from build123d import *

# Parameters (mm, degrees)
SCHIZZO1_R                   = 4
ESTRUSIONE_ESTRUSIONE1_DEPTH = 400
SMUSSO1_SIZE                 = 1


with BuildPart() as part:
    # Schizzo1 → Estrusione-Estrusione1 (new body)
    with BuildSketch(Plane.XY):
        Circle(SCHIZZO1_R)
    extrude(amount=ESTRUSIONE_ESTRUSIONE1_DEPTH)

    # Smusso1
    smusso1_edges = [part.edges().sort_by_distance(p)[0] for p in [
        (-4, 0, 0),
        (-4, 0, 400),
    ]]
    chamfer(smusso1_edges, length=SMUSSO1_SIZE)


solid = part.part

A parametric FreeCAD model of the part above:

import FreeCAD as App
import Part
import Sketcher
Q = App.Units.Quantity


def edges_at(feature, points):
    """Names of the edges that pass closest to the given points."""
    edges = feature.Shape.Edges
    near = lambda p: min(range(len(edges)), key=lambda i: edges[i].distToShape(Part.Vertex(*p))[0])
    return sorted({f"Edge{near(p) + 1}" for p in points})

doc = App.newDocument("Part")
params = doc.addObject("Spreadsheet::Sheet", "Params")
for row, (alias, value) in enumerate([
    ("sketch1_diameter", "8 mm"),
    ("pad1_length", "400 mm"),
    ("chamfer_size", "1 mm"),
], start=1):
    params.set(f"A{row}", alias)
    params.set(f"B{row}", "=" + value)
    params.setAlias(f"B{row}", alias)

body = doc.addObject("PartDesign::Body", "Body")

# Sketch on XY plane
sketch1 = body.newObject("Sketcher::SketchObject", "Sketch")
sketch1.AttachmentSupport = (doc.getObject("XY_Plane"), [""])
sketch1.MapMode = "FlatFace"
sketch1.addGeometry(Part.Circle(App.Vector(0, 0, 0), App.Vector(0, 0, 1), 4), False)
sketch1.addConstraint([
    Sketcher.Constraint("Coincident", 0, 3, -1, 1),
    Sketcher.Constraint("Diameter", 0, Q("8 mm")),
])
sketch1.setExpression("Constraints[1]", "Params.sketch1_diameter")
pad1 = body.newObject("PartDesign::Pad", "Pad")
pad1.Profile = sketch1
pad1.setExpression("Length", "Params.pad1_length")
doc.recompute()

chamfer = body.newObject("PartDesign::Chamfer", "Chamfer")
chamfer.Base = (pad1, edges_at(pad1, [(-4, 0, 0), (-4, 0, 400)]))
chamfer.setExpression("Size", "Params.chamfer_size")

doc.recompute()
